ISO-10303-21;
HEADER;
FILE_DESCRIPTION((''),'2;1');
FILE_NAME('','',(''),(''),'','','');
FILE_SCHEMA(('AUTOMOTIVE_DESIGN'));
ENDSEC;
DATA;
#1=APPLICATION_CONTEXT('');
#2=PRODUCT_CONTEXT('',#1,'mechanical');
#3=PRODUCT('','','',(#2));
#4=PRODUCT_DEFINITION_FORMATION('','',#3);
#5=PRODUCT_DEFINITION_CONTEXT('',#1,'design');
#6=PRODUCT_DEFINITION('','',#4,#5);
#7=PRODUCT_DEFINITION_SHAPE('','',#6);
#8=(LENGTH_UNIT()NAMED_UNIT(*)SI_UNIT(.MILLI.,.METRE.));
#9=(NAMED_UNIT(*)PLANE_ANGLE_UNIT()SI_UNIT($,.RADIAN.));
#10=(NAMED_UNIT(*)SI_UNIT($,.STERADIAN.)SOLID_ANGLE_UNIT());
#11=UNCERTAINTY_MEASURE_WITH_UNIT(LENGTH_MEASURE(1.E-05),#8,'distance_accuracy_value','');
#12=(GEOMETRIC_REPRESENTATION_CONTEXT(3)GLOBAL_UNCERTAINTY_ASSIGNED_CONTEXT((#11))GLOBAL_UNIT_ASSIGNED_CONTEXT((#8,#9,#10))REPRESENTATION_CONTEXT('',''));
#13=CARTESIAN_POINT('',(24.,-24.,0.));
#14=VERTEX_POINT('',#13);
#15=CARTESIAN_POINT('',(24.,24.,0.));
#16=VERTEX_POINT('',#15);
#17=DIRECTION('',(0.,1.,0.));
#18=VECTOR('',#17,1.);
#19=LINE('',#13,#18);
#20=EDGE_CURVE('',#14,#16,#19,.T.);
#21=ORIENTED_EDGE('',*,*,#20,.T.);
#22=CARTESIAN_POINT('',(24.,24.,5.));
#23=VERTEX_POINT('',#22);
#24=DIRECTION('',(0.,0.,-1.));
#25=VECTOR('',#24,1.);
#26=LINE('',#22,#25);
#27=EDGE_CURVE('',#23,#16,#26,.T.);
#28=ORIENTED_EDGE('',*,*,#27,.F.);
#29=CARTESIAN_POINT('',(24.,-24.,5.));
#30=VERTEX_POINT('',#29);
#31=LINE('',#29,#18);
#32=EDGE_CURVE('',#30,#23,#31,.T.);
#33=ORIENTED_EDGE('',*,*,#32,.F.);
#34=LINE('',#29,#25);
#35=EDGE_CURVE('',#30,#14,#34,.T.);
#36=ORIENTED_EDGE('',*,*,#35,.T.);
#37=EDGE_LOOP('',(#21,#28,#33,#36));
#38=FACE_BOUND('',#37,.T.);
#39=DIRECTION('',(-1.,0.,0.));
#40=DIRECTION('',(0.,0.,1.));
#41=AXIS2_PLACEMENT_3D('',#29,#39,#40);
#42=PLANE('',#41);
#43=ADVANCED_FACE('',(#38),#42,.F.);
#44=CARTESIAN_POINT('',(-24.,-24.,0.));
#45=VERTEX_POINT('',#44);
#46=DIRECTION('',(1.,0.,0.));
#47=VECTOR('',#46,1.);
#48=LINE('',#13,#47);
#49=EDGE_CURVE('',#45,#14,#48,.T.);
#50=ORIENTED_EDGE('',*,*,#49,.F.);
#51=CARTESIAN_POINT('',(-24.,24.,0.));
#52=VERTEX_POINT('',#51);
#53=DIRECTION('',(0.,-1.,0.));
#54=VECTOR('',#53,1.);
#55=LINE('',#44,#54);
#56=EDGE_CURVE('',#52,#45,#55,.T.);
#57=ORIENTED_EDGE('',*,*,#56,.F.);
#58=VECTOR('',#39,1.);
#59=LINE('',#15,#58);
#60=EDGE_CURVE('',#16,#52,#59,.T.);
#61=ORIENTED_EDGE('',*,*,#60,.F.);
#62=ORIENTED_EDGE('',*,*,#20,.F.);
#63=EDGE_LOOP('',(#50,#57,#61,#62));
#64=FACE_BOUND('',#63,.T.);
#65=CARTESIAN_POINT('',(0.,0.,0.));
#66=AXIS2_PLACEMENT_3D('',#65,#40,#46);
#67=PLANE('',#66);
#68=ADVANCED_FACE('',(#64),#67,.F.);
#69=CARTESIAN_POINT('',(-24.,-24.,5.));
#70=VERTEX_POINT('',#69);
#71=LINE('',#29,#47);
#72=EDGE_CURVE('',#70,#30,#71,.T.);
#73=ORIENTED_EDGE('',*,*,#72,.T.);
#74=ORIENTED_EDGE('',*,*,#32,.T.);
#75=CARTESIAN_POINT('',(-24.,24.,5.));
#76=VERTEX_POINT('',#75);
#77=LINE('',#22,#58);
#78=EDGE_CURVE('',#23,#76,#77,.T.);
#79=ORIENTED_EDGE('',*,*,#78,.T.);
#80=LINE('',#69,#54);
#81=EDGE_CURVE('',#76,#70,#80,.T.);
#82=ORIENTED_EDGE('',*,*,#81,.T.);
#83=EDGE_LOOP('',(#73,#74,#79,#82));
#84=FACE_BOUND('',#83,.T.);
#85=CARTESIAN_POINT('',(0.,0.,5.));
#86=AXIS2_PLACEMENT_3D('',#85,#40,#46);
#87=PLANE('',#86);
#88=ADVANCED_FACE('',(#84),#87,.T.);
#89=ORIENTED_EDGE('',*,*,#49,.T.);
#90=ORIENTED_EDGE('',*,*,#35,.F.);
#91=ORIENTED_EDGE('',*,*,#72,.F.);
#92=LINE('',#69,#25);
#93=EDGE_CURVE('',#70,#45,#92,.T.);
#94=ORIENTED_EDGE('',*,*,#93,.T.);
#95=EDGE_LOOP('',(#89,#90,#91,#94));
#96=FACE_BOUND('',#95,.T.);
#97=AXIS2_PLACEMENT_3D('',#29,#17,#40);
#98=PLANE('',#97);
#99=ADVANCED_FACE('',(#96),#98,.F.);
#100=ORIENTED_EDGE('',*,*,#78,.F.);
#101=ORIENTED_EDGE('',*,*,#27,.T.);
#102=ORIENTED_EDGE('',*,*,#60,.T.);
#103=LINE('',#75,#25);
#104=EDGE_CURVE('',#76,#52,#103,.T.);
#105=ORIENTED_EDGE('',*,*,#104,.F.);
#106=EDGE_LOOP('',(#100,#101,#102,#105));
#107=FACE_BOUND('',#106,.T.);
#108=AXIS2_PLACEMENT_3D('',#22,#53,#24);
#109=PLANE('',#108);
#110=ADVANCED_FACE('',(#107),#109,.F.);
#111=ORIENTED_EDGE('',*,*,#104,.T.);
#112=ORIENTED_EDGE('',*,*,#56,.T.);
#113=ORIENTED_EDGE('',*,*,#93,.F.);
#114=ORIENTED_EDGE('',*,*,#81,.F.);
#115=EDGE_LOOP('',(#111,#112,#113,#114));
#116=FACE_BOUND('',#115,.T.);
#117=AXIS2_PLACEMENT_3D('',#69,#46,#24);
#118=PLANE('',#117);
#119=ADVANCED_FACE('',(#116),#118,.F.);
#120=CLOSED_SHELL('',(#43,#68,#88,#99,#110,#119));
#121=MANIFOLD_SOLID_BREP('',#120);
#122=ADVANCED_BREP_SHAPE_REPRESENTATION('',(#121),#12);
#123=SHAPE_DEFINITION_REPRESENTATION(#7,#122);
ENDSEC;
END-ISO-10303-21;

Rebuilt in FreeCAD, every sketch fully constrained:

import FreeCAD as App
import Part
import Sketcher


def add_polygon(sketch, points):
    """Adds a closed chain of lines whose ends are joined by coincident constraints."""
    first, n = sketch.GeometryCount, len(points)
    for a, b in zip(points, points[1:] + points[:1]):
        sketch.addGeometry(Part.LineSegment(App.Vector(*a, 0), App.Vector(*b, 0)), False)
    for i in range(n):
        sketch.addConstraint(Sketcher.Constraint("Coincident", first + i, 2, first + (i + 1) % n, 1))

doc = App.newDocument("Part")
body = doc.addObject("PartDesign::Body", "Body")

# Sketch on XY plane
sketch1 = body.newObject("Sketcher::SketchObject", "Sketch")
sketch1.AttachmentSupport = (doc.getObject("XY_Plane"), [""])
sketch1.MapMode = "FlatFace"
add_polygon(sketch1, [(-24, 24), (-24, -24), (24, -24), (24, 24)])  # lines 0-3
sketch1.addConstraint([
    Sketcher.Constraint("Vertical", 0),
    Sketcher.Constraint("Horizontal", 1),
    Sketcher.Constraint("Vertical", 2),
    Sketcher.Constraint("Horizontal", 3),
    Sketcher.Constraint("Symmetric", 0, 2, 2, 2, -1, 1),
    Sketcher.Constraint("Equal", 3, 0),
    Sketcher.Constraint("DistanceX", 1, 1, 1, 2, 48.0),
])
pad1 = body.newObject("PartDesign::Pad", "Pad")
pad1.Profile = sketch1
pad1.Length = 5

doc.recompute()
